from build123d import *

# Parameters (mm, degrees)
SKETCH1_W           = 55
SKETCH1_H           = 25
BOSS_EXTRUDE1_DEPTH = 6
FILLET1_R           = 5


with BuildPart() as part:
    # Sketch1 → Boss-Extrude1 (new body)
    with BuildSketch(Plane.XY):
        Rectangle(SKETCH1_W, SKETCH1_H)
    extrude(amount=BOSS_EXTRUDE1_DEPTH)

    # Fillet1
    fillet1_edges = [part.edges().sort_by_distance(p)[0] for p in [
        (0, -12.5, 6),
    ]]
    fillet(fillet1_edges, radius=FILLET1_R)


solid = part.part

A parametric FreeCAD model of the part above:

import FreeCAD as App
import Part
import Sketcher
from FreeCAD import Vector


def edges_at(feature, points):
    """Names of the edges that pass closest to the given points."""
    edges = feature.Shape.Edges
    near = lambda p: min(range(len(edges)), key=lambda i: edges[i].distToShape(Part.Vertex(*p))[0])
    return sorted({f"Edge{near(p) + 1}" for p in points})

doc = App.newDocument("Part")
params = doc.addObject("Spreadsheet::Sheet", "Params")
for row, (alias, value) in enumerate([
    ("sketch1_width", "55 mm"),
    ("sketch1_height", "25 mm"),
    ("pad1_length", "6 mm"),
    ("fillet_radius", "5 mm"),
], start=1):
    params.set(f"A{row}", alias)
    params.set(f"B{row}", "=" + value)
    params.setAlias(f"B{row}", alias)

body = doc.addObject("PartDesign::Body", "Body")

# Sketch on XY plane
sketch1 = body.newObject("Sketcher::SketchObject", "Sketch")
sketch1.AttachmentSupport = (doc.getObject("XY_Plane"), [""])
sketch1.MapMode = "FlatFace"
sketch1.addGeometry(Part.LineSegment(Vector(-28, 12, 0), Vector(-28, -12, 0)), False)
sketch1.addGeometry(Part.LineSegment(Vector(-28, -12, 0), Vector(28, -12, 0)), False)
sketch1.addGeometry(Part.LineSegment(Vector(28, -12, 0), Vector(28, 12, 0)), False)
sketch1.addGeometry(Part.LineSegment(Vector(28, 12, 0), Vector(-28, 12, 0)), False)
sketch1.addConstraint(Sketcher.Constraint("Coincident", 0, 2, 1, 1))
sketch1.addConstraint(Sketcher.Constraint("Coincident", 1, 2, 2, 1))
sketch1.addConstraint(Sketcher.Constraint("Coincident", 2, 2, 3, 1))
sketch1.addConstraint(Sketcher.Constraint("Coincident", 3, 2, 0, 1))
sketch1.addConstraint(Sketcher.Constraint("Vertical", 0))
sketch1.addConstraint(Sketcher.Constraint("Horizontal", 1))
sketch1.addConstraint(Sketcher.Constraint("Vertical", 2))
sketch1.addConstraint(Sketcher.Constraint("Horizontal", 3))
sketch1.addConstraint(Sketcher.Constraint("Symmetric", 0, 2, 2, 2, -1, 1))
sketch1.addConstraint(Sketcher.Constraint("DistanceX", 1, 1, 1, 2, 55.0))
sketch1.addConstraint(Sketcher.Constraint("DistanceY", 0, 2, 0, 1, 25.0))
sketch1.setExpression("Constraints[9]", "Params.sketch1_width")
sketch1.setExpression("Constraints[10]", "Params.sketch1_height")
pad1 = body.newObject("PartDesign::Pad", "Pad")
pad1.Profile = sketch1
pad1.setExpression("Length", "Params.pad1_length")
doc.recompute()

fillet = body.newObject("PartDesign::Fillet", "Fillet")
fillet.Base = (pad1, edges_at(pad1, [(0, -12.5, 6)]))
fillet.setExpression("Radius", "Params.fillet_radius")

doc.recompute()
